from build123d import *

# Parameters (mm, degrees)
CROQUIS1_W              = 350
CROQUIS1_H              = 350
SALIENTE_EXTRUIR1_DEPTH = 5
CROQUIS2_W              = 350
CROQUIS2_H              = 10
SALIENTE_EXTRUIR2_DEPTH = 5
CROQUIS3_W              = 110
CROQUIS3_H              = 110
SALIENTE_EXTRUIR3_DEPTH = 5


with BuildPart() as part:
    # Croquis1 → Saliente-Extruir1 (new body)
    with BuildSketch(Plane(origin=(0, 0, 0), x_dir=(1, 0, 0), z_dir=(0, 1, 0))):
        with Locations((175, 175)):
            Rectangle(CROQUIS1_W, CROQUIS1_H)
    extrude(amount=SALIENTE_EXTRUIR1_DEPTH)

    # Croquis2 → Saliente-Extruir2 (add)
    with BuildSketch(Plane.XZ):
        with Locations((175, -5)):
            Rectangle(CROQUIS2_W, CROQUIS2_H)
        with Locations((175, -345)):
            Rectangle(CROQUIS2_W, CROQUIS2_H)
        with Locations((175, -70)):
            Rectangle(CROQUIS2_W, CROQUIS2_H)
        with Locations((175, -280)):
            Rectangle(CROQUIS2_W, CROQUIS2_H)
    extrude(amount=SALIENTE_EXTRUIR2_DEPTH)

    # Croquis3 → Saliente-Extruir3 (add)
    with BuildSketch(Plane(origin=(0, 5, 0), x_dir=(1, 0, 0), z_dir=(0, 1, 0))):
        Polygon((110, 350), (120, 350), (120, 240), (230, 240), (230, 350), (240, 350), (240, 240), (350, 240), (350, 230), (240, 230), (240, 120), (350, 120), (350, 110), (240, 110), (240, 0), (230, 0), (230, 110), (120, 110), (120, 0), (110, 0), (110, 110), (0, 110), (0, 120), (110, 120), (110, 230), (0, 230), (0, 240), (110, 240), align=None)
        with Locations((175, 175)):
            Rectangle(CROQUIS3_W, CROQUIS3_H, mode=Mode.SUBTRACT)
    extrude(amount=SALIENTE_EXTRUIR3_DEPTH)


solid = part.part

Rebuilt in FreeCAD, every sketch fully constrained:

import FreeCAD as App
import Part
import Sketcher
Q = App.Units.Quantity

doc = App.newDocument("Part")
body = doc.addObject("PartDesign::Body", "Body")

sketch1 = body.newObject("Sketcher::SketchObject", "Sketch")
sketch1.AttachmentSupport = (doc.getObject("XZ_Plane"), [""])
sketch1.MapMode = "FlatFace"
sketch1.addGeometry([
    Part.LineSegment(App.Vector(0, -350, 0), App.Vector(0, 0, 0)),
    Part.LineSegment(App.Vector(0, 0, 0), App.Vector(350, 0, 0)),
    Part.LineSegment(App.Vector(350, 0, 0), App.Vector(350, -350, 0)),
    Part.LineSegment(App.Vector(350, -350, 0), App.Vector(0, -350, 0)),
], False)
sketch1.addConstraint([
    Sketcher.Constraint("Coincident", 0, 2, 1, 1),
    Sketcher.Constraint("Coincident", 1, 2, 2, 1),
    Sketcher.Constraint("Coincident", 2, 2, 3, 1),
    Sketcher.Constraint("Coincident", 3, 2, 0, 1),
    Sketcher.Constraint("Vertical", 0),
    Sketcher.Constraint("Horizontal", 1),
    Sketcher.Constraint("Vertical", 2),
    Sketcher.Constraint("Horizontal", 3),
    Sketcher.Constraint("Coincident", 0, 2, -1, 1),
    Sketcher.Constraint("Equal", 3, 0),
    Sketcher.Constraint("DistanceX", 1, 1, 1, 2, Q("350 mm")),
])
pad1 = body.newObject("PartDesign::Pad", "Pad")
pad1.Profile = sketch1
pad1.Length = 5
pad1.Reversed = True

sketch2 = body.newObject("Sketcher::SketchObject", "Sketch001")
sketch2.AttachmentSupport = (doc.getObject("XZ_Plane"), [""])
sketch2.MapMode = "FlatFace"
sketch2.addGeometry([
    Part.LineSegment(App.Vector(0, 0, 0), App.Vector(0, -10, 0)),
    Part.LineSegment(App.Vector(0, -10, 0), App.Vector(350, -10, 0)),
    Part.LineSegment(App.Vector(350, -10, 0), App.Vector(350, 0, 0)),
    Part.LineSegment(App.Vector(350, 0, 0), App.Vector(0, 0, 0)),
    Part.LineSegment(App.Vector(0, -340, 0), App.Vector(0, -350, 0)),
    Part.LineSegment(App.Vector(0, -350, 0), App.Vector(350, -350, 0)),
    Part.LineSegment(App.Vector(350, -350, 0), App.Vector(350, -340, 0)),
    Part.LineSegment(App.Vector(350, -340, 0), App.Vector(0, -340, 0)),
    Part.LineSegment(App.Vector(0, -65, 0), App.Vector(0, -75, 0)),
    Part.LineSegment(App.Vector(0, -75, 0), App.Vector(350, -75, 0)),
    Part.LineSegment(App.Vector(350, -75, 0), App.Vector(350, -65, 0)),
    Part.LineSegment(App.Vector(350, -65, 0), App.Vector(0, -65, 0)),
    Part.LineSegment(App.Vector(0, -275, 0), App.Vector(0, -285, 0)),
    Part.LineSegment(App.Vector(0, -285, 0), App.Vector(350, -285, 0)),
    Part.LineSegment(App.Vector(350, -285, 0), App.Vector(350, -275, 0)),
    Part.LineSegment(App.Vector(350, -275, 0), App.Vector(0, -275, 0)),
], False)
sketch2.addConstraint([
    Sketcher.Constraint("Coincident", 0, 2, 1, 1),
    Sketcher.Constraint("Coincident", 1, 2, 2, 1),
    Sketcher.Constraint("Coincident", 2, 2, 3, 1),
    Sketcher.Constraint("Coincident", 3, 2, 0, 1),
    Sketcher.Constraint("Coincident", 4, 2, 5, 1),
    Sketcher.Constraint("Coincident", 5, 2, 6, 1),
    Sketcher.Constraint("Coincident", 6, 2, 7, 1),
    Sketcher.Constraint("Coincident", 7, 2, 4, 1),
    Sketcher.Constraint("Coincident", 8, 2, 9, 1),
    Sketcher.Constraint("Coincident", 9, 2, 10, 1),
    Sketcher.Constraint("Coincident", 10, 2, 11, 1),
    Sketcher.Constraint("Coincident", 11, 2, 8, 1),
    Sketcher.Constraint("Coincident", 12, 2, 13, 1),
    Sketcher.Constraint("Coincident", 13, 2, 14, 1),
    Sketcher.Constraint("Coincident", 14, 2, 15, 1),
    Sketcher.Constraint("Coincident", 15, 2, 12, 1),
    Sketcher.Constraint("Vertical", 0),
    Sketcher.Constraint("Horizontal", 1),
    Sketcher.Constraint("Vertical", 2),
    Sketcher.Constraint("Horizontal", 3),
    Sketcher.Constraint("Vertical", 4),
    Sketcher.Constraint("Horizontal", 5),
    Sketcher.Constraint("Vertical", 6),
    Sketcher.Constraint("Horizontal", 7),
    Sketcher.Constraint("Vertical", 8),
    Sketcher.Constraint("Horizontal", 9),
    Sketcher.Constraint("Vertical", 10),
    Sketcher.Constraint("Horizontal", 11),
    Sketcher.Constraint("Vertical", 12),
    Sketcher.Constraint("Horizontal", 13),
    Sketcher.Constraint("Vertical", 14),
    Sketcher.Constraint("Horizontal", 15),
    Sketcher.Constraint("Coincident", 3, 2, -1, 1),
    Sketcher.Constraint("PointOnObject", 4, 2, -2),
    Sketcher.Constraint("PointOnObject", 8, 2, -2),
    Sketcher.Constraint("PointOnObject", 12, 2, -2),
    Sketcher.Constraint("Vertical", 2, 2, 5, 2),
    Sketcher.Constraint("Vertical", 6, 2, 9, 2),
    Sketcher.Constraint("Vertical", 10, 2, 13, 2),
    Sketcher.Constraint("Equal", 2, 4),
    Sketcher.Constraint("Equal", 6, 8),
    Sketcher.Constraint("Equal", 10, 12),
    Sketcher.Constraint("DistanceX", 1, 1, 1, 2, Q("350 mm")),
    Sketcher.Constraint("DistanceY", 0, 2, 0, 1, Q("10 mm")),
    Sketcher.Constraint("DistanceY", 4, 2, -1, 1, Q("350 mm")),
    Sketcher.Constraint("DistanceY", 8, 2, -1, 1, Q("75 mm")),
    Sketcher.Constraint("DistanceY", 12, 2, -1, 1, Q("285 mm")),
])
pad2 = body.newObject("PartDesign::Pad", "Pad001")
pad2.Profile = sketch2
pad2.Length = 5

sketch3 = body.newObject("Sketcher::SketchObject", "Sketch002")
sketch3.AttachmentSupport = (doc.getObject("XZ_Plane"), [""])
sketch3.MapMode = "FlatFace"
sketch3.AttachmentOffset = App.Placement(App.Vector(0, 0, -5), App.Rotation())
sketch3.addGeometry([
    Part.LineSegment(App.Vector(120, -350, 0), App.Vector(110, -350, 0)),
    Part.LineSegment(App.Vector(110, -350, 0), App.Vector(110, -240, 0)),
    Part.LineSegment(App.Vector(110, -240, 0), App.Vector(0, -240, 0)),
    Part.LineSegment(App.Vector(0, -240, 0), App.Vector(0, -230, 0)),
    Part.LineSegment(App.Vector(0, -230, 0), App.Vector(110, -230, 0)),
    Part.LineSegment(App.Vector(110, -230, 0), App.Vector(110, -120, 0)),
    Part.LineSegment(App.Vector(110, -120, 0), App.Vector(0, -120, 0)),
    Part.LineSegment(App.Vector(0, -120, 0), App.Vector(0, -110, 0)),
    Part.LineSegment(App.Vector(0, -110, 0), App.Vector(110, -110, 0)),
    Part.LineSegment(App.Vector(110, -110, 0), App.Vector(110, 0, 0)),
    Part.LineSegment(App.Vector(110, 0, 0), App.Vector(120, 0, 0)),
    Part.LineSegment(App.Vector(120, 0, 0), App.Vector(120, -110, 0)),
    Part.LineSegment(App.Vector(120, -110, 0), App.Vector(230, -110, 0)),
    Part.LineSegment(App.Vector(230, -110, 0), App.Vector(230, 0, 0)),
    Part.LineSegment(App.Vector(230, 0, 0), App.Vector(240, 0, 0)),
    Part.LineSegment(App.Vector(240, 0, 0), App.Vector(240, -110, 0)),
    Part.LineSegment(App.Vector(240, -110, 0), App.Vector(350, -110, 0)),
    Part.LineSegment(App.Vector(350, -110, 0), App.Vector(350, -120, 0)),
    Part.LineSegment(App.Vector(350, -120, 0), App.Vector(240, -120, 0)),
    Part.LineSegment(App.Vector(240, -120, 0), App.Vector(240, -230, 0)),
    Part.LineSegment(App.Vector(240, -230, 0), App.Vector(350, -230, 0)),
    Part.LineSegment(App.Vector(350, -230, 0), App.Vector(350, -240, 0)),
    Part.LineSegment(App.Vector(350, -240, 0), App.Vector(240, -240, 0)),
    Part.LineSegment(App.Vector(240, -240, 0), App.Vector(240, -350, 0)),
    Part.LineSegment(App.Vector(240, -350, 0), App.Vector(230, -350, 0)),
    Part.LineSegment(App.Vector(230, -350, 0), App.Vector(230, -240, 0)),
    Part.LineSegment(App.Vector(230, -240, 0), App.Vector(120, -240, 0)),
    Part.LineSegment(App.Vector(120, -240, 0), App.Vector(120, -350, 0)),
    Part.LineSegment(App.Vector(120, -120, 0), App.Vector(120, -230, 0)),
    Part.LineSegment(App.Vector(120, -230, 0), App.Vector(230, -230, 0)),
    Part.LineSegment(App.Vector(230, -230, 0), App.Vector(230, -120, 0)),
    Part.LineSegment(App.Vector(230, -120, 0), App.Vector(120, -120, 0)),
], False)
sketch3.addConstraint([
    Sketcher.Constraint("Coincident", 0, 2, 1, 1),
    Sketcher.Constraint("Coincident", 1, 2, 2, 1),
    Sketcher.Constraint("Coincident", 2, 2, 3, 1),
    Sketcher.Constraint("Coincident", 3, 2, 4, 1),
    Sketcher.Constraint("Coincident", 4, 2, 5, 1),
    Sketcher.Constraint("Coincident", 5, 2, 6, 1),
    Sketcher.Constraint("Coincident", 6, 2, 7, 1),
    Sketcher.Constraint("Coincident", 7, 2, 8, 1),
    Sketcher.Constraint("Coincident", 8, 2, 9, 1),
    Sketcher.Constraint("Coincident", 9, 2, 10, 1),
    Sketcher.Constraint("Coincident", 10, 2, 11, 1),
    Sketcher.Constraint("Coincident", 11, 2, 12, 1),
    Sketcher.Constraint("Coincident", 12, 2, 13, 1),
    Sketcher.Constraint("Coincident", 13, 2, 14, 1),
    Sketcher.Constraint("Coincident", 14, 2, 15, 1),
    Sketcher.Constraint("Coincident", 15, 2, 16, 1),
    Sketcher.Constraint("Coincident", 16, 2, 17, 1),
    Sketcher.Constraint("Coincident", 17, 2, 18, 1),
    Sketcher.Constraint("Coincident", 18, 2, 19, 1),
    Sketcher.Constraint("Coincident", 19, 2, 20, 1),
    Sketcher.Constraint("Coincident", 20, 2, 21, 1),
    Sketcher.Constraint("Coincident", 21, 2, 22, 1),
    Sketcher.Constraint("Coincident", 22, 2, 23, 1),
    Sketcher.Constraint("Coincident", 23, 2, 24, 1),
    Sketcher.Constraint("Coincident", 24, 2, 25, 1),
    Sketcher.Constraint("Coincident", 25, 2, 26, 1),
    Sketcher.Constraint("Coincident", 26, 2, 27, 1),
    Sketcher.Constraint("Coincident", 27, 2, 0, 1),
    Sketcher.Constraint("Coincident", 28, 2, 29, 1),
    Sketcher.Constraint("Coincident", 29, 2, 30, 1),
    Sketcher.Constraint("Coincident", 30, 2, 31, 1),
    Sketcher.Constraint("Coincident", 31, 2, 28, 1),
    Sketcher.Constraint("Horizontal", 0),
    Sketcher.Constraint("Vertical", 1),
    Sketcher.Constraint("Horizontal", 2),
    Sketcher.Constraint("Vertical", 3),
    Sketcher.Constraint("Horizontal", 4),
    Sketcher.Constraint("Vertical", 5),
    Sketcher.Constraint("Horizontal", 6),
    Sketcher.Constraint("Vertical", 7),
    Sketcher.Constraint("Horizontal", 8),
    Sketcher.Constraint("Vertical", 9),
    Sketcher.Constraint("Horizontal", 10),
    Sketcher.Constraint("Vertical", 11),
    Sketcher.Constraint("Horizontal", 12),
    Sketcher.Constraint("Vertical", 13),
    Sketcher.Constraint("Horizontal", 14),
    Sketcher.Constraint("Vertical", 15),
    Sketcher.Constraint("Horizontal", 16),
    Sketcher.Constraint("Vertical", 17),
    Sketcher.Constraint("Horizontal", 18),
    Sketcher.Constraint("Vertical", 19),
    Sketcher.Constraint("Horizontal", 20),
    Sketcher.Constraint("Vertical", 21),
    Sketcher.Constraint("Horizontal", 22),
    Sketcher.Constraint("Vertical", 23),
    Sketcher.Constraint("Horizontal", 24),
    Sketcher.Constraint("Vertical", 25),
    Sketcher.Constraint("Horizontal", 26),
    Sketcher.Constraint("Vertical", 27),
    Sketcher.Constraint("Vertical", 28),
    Sketcher.Constraint("Horizontal", 29),
    Sketcher.Constraint("Vertical", 30),
    Sketcher.Constraint("Horizontal", 31),
    Sketcher.Constraint("PointOnObject", 2, 2, -2),
    Sketcher.Constraint("PointOnObject", 6, 2, -2),
    Sketcher.Constraint("PointOnObject", 9, 2, -1),
    Sketcher.Constraint("PointOnObject", 13, 2, -1),
    Sketcher.Constraint("Horizontal", 8, 2, 11, 2),
    Sketcher.Constraint("Horizontal", 12, 2, 15, 2),
    Sketcher.Constraint("Horizontal", 6, 2, 17, 2),
    Sketcher.Constraint("Horizontal", 4, 2, 19, 2),
    Sketcher.Constraint("Horizontal", 2, 2, 21, 2),
    Sketcher.Constraint("Horizontal", 0, 2, 23, 2),
    Sketcher.Constraint("Horizontal", 22, 2, 25, 2),
    Sketcher.Constraint("Horizontal", 20, 2, 28, 2),
    Sketcher.Constraint("Horizontal", 18, 2, 30, 2),
    Sketcher.Constraint("Vertical", 1, 2, 4, 2),
    Sketcher.Constraint("Vertical", 5, 2, 8, 2),
    Sketcher.Constraint("Vertical", 15, 2, 18, 2),
    Sketcher.Constraint("Vertical", 17, 2, 20, 2),
    Sketcher.Constraint("Vertical", 19, 2, 22, 2),
    Sketcher.Constraint("Vertical", 13, 2, 24, 2),
    Sketcher.Constraint("Vertical", 11, 2, 26, 2),
    Sketcher.Constraint("Vertical", 27, 2, 28, 2),
    Sketcher.Constraint("Vertical", 25, 2, 29, 2),
    Sketcher.Constraint("Equal", 8, 12),
    Sketcher.Constraint("Equal", 10, 14),
    Sketcher.Constraint("Equal", 12, 16),
    Sketcher.Constraint("Equal", 31, 1),
    Sketcher.Constraint("Equal", 24, 3),
    Sketcher.Constraint("Equal", 1, 5),
    Sketcher.Constraint("Equal", 3, 7),
    Sketcher.Constraint("Equal", 5, 9),
    Sketcher.Constraint("DistanceX", 0, 2, 0, 1, Q("10 mm")),
    Sketcher.Constraint("DistanceX", 2, 2, 2, 1, Q("110 mm")),
])
pad3 = body.newObject("PartDesign::Pad", "Pad002")
pad3.Profile = sketch3
pad3.Length = 5
pad3.Reversed = True

doc.recompute()
